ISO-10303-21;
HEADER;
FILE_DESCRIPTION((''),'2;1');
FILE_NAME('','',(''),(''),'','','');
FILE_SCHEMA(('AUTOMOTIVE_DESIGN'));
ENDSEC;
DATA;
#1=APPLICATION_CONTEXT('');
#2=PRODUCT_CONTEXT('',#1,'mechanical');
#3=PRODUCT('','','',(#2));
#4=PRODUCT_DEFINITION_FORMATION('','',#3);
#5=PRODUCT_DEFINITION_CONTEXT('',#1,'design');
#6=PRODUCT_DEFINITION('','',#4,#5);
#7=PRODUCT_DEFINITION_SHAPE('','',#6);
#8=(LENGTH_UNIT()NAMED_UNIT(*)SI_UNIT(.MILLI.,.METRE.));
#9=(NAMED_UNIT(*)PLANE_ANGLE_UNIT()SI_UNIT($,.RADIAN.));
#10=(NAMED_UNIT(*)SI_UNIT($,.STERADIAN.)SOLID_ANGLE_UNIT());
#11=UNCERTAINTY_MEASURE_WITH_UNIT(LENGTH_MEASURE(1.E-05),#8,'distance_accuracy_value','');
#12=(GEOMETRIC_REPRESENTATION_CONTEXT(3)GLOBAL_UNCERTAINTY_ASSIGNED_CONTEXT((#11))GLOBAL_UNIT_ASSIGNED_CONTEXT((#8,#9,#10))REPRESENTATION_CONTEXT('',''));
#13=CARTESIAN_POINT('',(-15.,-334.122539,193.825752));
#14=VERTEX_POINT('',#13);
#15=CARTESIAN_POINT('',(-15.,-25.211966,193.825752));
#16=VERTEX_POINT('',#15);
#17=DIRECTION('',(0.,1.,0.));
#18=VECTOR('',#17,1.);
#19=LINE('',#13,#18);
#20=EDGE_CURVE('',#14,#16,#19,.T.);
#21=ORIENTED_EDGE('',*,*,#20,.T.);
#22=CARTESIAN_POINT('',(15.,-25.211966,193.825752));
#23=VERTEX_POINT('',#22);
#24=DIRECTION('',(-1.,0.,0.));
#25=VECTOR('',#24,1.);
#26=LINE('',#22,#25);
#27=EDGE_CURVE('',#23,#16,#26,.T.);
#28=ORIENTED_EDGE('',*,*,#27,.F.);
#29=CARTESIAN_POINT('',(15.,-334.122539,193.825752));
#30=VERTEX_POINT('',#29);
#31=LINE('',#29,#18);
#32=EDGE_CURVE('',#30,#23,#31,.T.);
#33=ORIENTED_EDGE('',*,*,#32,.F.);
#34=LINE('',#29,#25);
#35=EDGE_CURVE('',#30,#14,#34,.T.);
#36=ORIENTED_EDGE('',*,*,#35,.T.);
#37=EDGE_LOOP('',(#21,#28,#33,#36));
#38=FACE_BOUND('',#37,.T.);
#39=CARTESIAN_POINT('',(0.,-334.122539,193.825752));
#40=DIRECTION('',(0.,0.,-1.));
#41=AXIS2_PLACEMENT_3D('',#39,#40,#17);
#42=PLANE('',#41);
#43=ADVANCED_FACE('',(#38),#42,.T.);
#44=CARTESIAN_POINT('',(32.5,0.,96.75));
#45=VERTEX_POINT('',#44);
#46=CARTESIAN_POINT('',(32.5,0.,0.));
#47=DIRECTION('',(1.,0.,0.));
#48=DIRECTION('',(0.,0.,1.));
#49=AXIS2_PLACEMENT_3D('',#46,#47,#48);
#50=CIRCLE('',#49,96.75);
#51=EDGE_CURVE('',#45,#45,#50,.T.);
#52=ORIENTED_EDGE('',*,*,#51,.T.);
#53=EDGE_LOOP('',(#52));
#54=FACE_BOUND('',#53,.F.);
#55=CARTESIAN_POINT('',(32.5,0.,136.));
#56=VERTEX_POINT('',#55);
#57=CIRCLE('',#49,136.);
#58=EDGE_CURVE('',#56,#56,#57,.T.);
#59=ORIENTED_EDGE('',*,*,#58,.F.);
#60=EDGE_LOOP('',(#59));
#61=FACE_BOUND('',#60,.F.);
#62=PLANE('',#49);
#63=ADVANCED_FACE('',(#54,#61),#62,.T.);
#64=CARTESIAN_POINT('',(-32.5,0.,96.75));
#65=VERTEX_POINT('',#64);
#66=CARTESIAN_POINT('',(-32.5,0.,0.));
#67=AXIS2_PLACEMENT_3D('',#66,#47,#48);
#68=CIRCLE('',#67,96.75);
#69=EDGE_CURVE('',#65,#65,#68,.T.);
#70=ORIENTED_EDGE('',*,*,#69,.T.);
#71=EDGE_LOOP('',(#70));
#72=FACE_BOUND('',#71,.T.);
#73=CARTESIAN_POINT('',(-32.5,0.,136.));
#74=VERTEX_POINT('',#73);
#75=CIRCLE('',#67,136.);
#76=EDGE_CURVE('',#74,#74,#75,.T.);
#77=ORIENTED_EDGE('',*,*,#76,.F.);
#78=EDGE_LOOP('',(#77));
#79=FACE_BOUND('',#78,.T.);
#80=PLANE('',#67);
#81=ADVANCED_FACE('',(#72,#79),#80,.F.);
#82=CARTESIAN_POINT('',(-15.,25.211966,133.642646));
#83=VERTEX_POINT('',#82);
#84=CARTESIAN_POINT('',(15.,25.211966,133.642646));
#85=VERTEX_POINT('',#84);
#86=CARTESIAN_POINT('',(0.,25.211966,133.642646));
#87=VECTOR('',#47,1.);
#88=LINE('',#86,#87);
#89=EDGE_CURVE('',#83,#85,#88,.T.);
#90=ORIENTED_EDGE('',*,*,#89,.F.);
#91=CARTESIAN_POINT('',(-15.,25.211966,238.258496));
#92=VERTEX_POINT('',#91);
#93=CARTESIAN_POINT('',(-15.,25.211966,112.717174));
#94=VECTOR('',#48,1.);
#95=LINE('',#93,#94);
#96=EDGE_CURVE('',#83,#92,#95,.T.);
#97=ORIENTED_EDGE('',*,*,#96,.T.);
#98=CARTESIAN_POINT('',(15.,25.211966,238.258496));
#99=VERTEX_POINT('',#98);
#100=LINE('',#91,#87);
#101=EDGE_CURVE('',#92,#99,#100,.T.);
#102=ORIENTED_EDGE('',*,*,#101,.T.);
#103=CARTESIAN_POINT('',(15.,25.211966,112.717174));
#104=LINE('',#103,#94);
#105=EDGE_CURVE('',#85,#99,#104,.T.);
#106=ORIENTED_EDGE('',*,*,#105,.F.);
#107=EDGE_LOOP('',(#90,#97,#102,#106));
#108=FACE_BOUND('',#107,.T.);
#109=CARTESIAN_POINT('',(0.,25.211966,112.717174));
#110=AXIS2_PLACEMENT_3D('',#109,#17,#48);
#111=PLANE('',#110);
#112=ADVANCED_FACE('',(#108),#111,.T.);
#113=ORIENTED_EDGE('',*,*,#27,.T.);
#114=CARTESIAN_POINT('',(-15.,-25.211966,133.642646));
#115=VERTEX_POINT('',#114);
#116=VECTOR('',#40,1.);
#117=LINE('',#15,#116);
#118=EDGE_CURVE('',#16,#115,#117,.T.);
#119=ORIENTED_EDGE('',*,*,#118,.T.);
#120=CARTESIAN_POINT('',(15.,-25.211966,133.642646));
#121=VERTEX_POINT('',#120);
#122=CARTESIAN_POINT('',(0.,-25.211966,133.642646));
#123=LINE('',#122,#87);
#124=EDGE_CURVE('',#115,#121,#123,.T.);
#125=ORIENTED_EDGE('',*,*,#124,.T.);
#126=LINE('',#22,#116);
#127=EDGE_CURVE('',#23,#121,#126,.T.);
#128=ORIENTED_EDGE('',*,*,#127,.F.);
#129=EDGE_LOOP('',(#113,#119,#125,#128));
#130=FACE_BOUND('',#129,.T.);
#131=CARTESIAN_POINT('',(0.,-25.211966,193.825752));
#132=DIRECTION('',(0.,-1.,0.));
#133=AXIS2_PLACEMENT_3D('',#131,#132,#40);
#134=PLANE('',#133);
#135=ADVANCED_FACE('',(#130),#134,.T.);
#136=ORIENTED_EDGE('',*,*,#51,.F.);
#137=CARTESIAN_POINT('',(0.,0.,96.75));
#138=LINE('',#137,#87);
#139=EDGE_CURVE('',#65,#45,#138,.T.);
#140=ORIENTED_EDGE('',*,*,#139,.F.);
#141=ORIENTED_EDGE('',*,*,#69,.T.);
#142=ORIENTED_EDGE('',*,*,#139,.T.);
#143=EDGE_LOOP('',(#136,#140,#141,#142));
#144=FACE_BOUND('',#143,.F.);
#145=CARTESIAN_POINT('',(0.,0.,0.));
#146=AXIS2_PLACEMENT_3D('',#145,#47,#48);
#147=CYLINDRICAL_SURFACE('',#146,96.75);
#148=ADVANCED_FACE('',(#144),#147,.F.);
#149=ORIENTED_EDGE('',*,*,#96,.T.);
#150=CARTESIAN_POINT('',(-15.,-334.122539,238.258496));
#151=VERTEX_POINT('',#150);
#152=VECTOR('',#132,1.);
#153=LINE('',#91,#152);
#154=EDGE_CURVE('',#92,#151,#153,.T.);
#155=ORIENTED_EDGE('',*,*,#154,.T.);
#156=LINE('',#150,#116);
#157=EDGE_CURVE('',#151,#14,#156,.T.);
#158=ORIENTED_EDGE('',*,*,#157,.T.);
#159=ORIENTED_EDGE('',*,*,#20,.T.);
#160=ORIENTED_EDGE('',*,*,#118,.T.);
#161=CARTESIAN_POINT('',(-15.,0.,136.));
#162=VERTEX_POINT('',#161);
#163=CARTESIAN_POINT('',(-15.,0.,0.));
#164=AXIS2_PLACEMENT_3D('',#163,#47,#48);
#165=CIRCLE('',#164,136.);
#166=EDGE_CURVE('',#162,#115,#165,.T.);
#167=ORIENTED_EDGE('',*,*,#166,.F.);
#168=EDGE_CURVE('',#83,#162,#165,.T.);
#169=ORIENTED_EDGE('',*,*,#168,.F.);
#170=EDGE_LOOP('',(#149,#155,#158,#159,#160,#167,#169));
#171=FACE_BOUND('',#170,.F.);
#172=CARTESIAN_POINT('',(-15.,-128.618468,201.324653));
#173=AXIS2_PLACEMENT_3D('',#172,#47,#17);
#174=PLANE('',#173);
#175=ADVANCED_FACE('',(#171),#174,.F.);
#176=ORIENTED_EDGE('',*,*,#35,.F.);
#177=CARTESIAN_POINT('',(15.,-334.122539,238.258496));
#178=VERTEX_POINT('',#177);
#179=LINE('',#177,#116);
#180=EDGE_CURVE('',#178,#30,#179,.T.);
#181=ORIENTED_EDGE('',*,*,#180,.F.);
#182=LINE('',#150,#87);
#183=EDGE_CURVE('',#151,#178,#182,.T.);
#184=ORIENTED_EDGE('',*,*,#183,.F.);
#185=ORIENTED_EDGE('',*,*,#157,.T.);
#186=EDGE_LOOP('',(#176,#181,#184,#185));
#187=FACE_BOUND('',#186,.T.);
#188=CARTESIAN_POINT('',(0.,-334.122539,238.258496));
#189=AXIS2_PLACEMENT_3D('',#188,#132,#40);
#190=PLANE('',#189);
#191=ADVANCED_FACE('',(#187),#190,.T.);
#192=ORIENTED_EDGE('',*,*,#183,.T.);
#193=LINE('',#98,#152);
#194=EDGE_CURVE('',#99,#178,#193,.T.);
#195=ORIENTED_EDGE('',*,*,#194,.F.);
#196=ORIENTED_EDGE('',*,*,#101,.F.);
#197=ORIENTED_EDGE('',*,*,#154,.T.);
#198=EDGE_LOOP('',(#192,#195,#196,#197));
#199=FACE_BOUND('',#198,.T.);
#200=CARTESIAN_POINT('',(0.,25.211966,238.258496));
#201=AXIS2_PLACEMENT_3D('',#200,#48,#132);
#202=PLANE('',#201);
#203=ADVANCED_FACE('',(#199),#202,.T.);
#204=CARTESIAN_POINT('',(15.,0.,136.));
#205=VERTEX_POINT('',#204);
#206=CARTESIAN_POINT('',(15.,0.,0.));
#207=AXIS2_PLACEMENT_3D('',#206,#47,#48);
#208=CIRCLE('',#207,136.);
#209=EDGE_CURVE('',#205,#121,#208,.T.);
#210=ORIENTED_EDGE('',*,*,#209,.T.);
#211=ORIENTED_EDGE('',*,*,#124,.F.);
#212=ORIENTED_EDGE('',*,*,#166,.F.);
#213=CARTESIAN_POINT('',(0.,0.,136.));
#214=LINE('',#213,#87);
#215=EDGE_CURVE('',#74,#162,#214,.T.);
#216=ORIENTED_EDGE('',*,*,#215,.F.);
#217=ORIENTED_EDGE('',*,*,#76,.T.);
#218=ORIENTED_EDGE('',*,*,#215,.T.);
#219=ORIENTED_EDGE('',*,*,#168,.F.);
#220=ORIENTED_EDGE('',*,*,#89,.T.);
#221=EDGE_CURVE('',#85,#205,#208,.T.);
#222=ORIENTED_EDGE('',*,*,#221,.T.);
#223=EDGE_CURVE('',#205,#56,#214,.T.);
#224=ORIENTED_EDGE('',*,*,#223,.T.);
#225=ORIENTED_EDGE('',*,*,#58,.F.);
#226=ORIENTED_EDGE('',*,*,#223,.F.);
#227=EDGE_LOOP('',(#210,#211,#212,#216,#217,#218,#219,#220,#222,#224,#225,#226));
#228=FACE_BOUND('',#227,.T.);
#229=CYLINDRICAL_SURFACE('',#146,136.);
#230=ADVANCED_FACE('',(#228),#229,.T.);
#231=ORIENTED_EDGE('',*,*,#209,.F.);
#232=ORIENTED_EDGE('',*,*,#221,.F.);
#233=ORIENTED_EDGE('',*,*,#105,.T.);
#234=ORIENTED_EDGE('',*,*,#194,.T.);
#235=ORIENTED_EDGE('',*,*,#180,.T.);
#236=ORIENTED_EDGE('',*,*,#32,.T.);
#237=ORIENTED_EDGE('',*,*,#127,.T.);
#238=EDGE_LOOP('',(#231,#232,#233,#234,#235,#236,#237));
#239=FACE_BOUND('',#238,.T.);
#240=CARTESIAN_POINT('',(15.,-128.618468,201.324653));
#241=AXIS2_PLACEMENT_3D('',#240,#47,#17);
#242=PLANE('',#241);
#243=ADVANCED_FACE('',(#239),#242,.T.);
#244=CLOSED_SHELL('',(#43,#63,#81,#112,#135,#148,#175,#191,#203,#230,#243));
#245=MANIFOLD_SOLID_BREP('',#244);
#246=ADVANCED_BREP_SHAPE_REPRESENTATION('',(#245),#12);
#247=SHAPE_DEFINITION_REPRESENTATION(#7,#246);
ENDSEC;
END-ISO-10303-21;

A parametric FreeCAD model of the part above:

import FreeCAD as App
import Part
import Sketcher

V = App.Vector

doc = App.newDocument("Part")
params = doc.addObject("Spreadsheet::Sheet", "Params")
for row, (alias, value) in enumerate([
    ("sketch1_width", "65 mm"),
    ("sketch1_height", "39.25 mm"),
    ("revolution_angle", "360 deg"),
    ("pad1_length", "30 mm"),
], start=1):
    params.set(f"A{row}", alias)
    params.set(f"B{row}", "=" + value)
    params.setAlias(f"B{row}", alias)

body = doc.addObject("PartDesign::Body", "Body")

# Sketch on XZ plane
sketch1 = body.newObject("Sketcher::SketchObject", "Sketch")
sketch1.AttachmentSupport = (doc.getObject("XZ_Plane"), [""])
sketch1.MapMode = "FlatFace"
sketch1.addGeometry(Part.LineSegment(V(-32, 136, 0), V(-32, 97, 0)), False)
sketch1.addGeometry(Part.LineSegment(V(-32, 97, 0), V(32, 97, 0)), False)
sketch1.addGeometry(Part.LineSegment(V(32, 97, 0), V(32, 136, 0)), False)
sketch1.addGeometry(Part.LineSegment(V(32, 136, 0), V(-32, 136, 0)), False)
sketch1.addConstraint(Sketcher.Constraint("Coincident", 0, 2, 1, 1))
sketch1.addConstraint(Sketcher.Constraint("Coincident", 1, 2, 2, 1))
sketch1.addConstraint(Sketcher.Constraint("Coincident", 2, 2, 3, 1))
sketch1.addConstraint(Sketcher.Constraint("Coincident", 3, 2, 0, 1))
sketch1.addConstraint(Sketcher.Constraint("Vertical", 0))
sketch1.addConstraint(Sketcher.Constraint("Horizontal", 1))
sketch1.addConstraint(Sketcher.Constraint("Vertical", 2))
sketch1.addConstraint(Sketcher.Constraint("Horizontal", 3))
sketch1.addConstraint(Sketcher.Constraint("DistanceX", 1, 1, 1, 2, 65.0))
sketch1.addConstraint(Sketcher.Constraint("DistanceY", -1, 1, 2, 2, 136.0))
sketch1.addConstraint(Sketcher.Constraint("DistanceY", 0, 2, 0, 1, 39.25))
sketch1.addConstraint(Sketcher.Constraint("DistanceX", 0, 2, -1, 1, 32.5))
sketch1.setExpression("Constraints[8]", "Params.sketch1_width")
sketch1.setExpression("Constraints[10]", "Params.sketch1_height")
revolution = body.newObject("PartDesign::Revolution", "Revolution")
revolution.Profile = sketch1
revolution.ReferenceAxis = (sketch1, ["H_Axis"])
revolution.setExpression("Angle", "Params.revolution_angle")

# Sketch on YZ plane
sketch2 = body.newObject("Sketcher::SketchObject", "Sketch001")
sketch2.AttachmentSupport = (doc.getObject("YZ_Plane"), [""])
sketch2.MapMode = "FlatFace"
sketch2.addGeometry(Part.LineSegment(V(-25, 113, 0), V(25, 113, 0)), False)
sketch2.addGeometry(Part.LineSegment(V(25, 113, 0), V(25, 238, 0)), False)
sketch2.addGeometry(Part.LineSegment(V(25, 238, 0), V(-334, 238, 0)), False)
sketch2.addGeometry(Part.LineSegment(V(-334, 238, 0), V(-334, 194, 0)), False)
sketch2.addGeometry(Part.LineSegment(V(-334, 194, 0), V(-25, 194, 0)), False)
sketch2.addGeometry(Part.LineSegment(V(-25, 194, 0), V(-25, 113, 0)), False)
sketch2.addConstraint(Sketcher.Constraint("Coincident", 0, 2, 1, 1))
sketch2.addConstraint(Sketcher.Constraint("Coincident", 1, 2, 2, 1))
sketch2.addConstraint(Sketcher.Constraint("Coincident", 2, 2, 3, 1))
sketch2.addConstraint(Sketcher.Constraint("Coincident", 3, 2, 4, 1))
sketch2.addConstraint(Sketcher.Constraint("Coincident", 4, 2, 5, 1))
sketch2.addConstraint(Sketcher.Constraint("Coincident", 5, 2, 0, 1))
sketch2.addConstraint(Sketcher.Constraint("Horizontal", 0))
sketch2.addConstraint(Sketcher.Constraint("Vertical", 1))
sketch2.addConstraint(Sketcher.Constraint("Horizontal", 2))
sketch2.addConstraint(Sketcher.Constraint("Vertical", 3))
sketch2.addConstraint(Sketcher.Constraint("Horizontal", 4))
sketch2.addConstraint(Sketcher.Constraint("Vertical", 5))
sketch2.addConstraint(Sketcher.Constraint("DistanceX", 0, 1, 0, 2, 50.423932))
sketch2.addConstraint(Sketcher.Constraint("DistanceX", 2, 2, 2, 1, 359.334505))
sketch2.addConstraint(Sketcher.Constraint("DistanceY", 1, 1, 1, 2, 125.541322))
sketch2.addConstraint(Sketcher.Constraint("DistanceY", 3, 2, 3, 1, 44.432744))
sketch2.addConstraint(Sketcher.Constraint("DistanceX", 2, 2, -1, 1, 334.122539))
sketch2.addConstraint(Sketcher.Constraint("DistanceY", -1, 1, 3, 2, 193.825752))
pad1 = body.newObject("PartDesign::Pad", "Pad")
pad1.Profile = sketch2
pad1.setExpression("Length", "Params.pad1_length")
pad1.Midplane = True

doc.recompute()
